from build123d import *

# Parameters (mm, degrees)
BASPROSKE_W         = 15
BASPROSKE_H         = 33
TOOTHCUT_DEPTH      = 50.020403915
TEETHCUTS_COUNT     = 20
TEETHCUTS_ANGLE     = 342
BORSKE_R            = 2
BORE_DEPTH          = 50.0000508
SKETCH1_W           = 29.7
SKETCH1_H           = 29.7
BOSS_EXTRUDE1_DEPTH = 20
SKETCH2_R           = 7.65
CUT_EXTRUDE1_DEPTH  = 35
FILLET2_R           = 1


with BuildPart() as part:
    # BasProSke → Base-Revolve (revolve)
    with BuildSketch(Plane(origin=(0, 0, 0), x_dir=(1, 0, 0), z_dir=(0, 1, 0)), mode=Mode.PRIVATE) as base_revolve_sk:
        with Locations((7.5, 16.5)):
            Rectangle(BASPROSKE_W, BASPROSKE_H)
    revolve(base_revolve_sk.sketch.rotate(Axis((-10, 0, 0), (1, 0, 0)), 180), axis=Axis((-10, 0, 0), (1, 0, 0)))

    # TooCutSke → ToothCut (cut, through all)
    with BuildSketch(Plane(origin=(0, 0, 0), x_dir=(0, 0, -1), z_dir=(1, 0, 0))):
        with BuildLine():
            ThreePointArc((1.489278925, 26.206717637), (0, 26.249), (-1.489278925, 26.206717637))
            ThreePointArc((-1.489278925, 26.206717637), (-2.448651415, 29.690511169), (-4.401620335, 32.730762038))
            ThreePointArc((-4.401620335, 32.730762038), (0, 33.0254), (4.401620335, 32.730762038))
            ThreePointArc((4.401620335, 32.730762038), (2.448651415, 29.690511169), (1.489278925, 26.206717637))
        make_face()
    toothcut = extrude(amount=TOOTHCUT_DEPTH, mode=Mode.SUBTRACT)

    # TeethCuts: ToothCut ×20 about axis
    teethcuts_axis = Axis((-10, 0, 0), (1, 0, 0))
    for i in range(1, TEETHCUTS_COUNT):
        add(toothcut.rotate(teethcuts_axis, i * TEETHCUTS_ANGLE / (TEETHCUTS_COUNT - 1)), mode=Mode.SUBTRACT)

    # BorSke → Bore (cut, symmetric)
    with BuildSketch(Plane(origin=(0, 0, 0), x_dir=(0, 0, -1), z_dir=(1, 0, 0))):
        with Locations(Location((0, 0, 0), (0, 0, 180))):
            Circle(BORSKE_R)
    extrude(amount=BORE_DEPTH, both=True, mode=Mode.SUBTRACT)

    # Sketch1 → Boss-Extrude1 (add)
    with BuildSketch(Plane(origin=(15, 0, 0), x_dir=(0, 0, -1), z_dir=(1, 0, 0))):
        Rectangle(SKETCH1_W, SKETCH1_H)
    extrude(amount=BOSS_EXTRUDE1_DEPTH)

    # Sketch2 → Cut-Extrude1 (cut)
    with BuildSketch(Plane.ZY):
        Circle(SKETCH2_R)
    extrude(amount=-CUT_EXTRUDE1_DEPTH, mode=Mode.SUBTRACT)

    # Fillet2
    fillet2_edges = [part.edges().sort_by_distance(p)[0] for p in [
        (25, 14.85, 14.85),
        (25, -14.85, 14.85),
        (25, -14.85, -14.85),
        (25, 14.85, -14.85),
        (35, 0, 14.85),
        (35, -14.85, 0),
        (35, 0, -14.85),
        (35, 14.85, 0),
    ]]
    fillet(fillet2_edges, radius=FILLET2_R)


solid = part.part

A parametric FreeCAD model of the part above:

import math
import FreeCAD as App
import Part
import Sketcher

V = App.Vector


def edges_at(feature, points):
    """Names of the edges that pass closest to the given points."""
    edges = feature.Shape.Edges
    near = lambda p: min(range(len(edges)), key=lambda i: edges[i].distToShape(Part.Vertex(*p))[0])
    return sorted({f"Edge{near(p) + 1}" for p in points})

doc = App.newDocument("Part")
body = doc.addObject("PartDesign::Body", "Body")

# Sketch on XZ plane
sketch1 = body.newObject("Sketcher::SketchObject", "Sketch")
sketch1.AttachmentSupport = (doc.getObject("XZ_Plane"), [""])
sketch1.MapMode = "FlatFace"
sketch1.addGeometry(Part.LineSegment(V(0, -33, 0), V(0, 0, 0)), False)
sketch1.addGeometry(Part.LineSegment(V(0, 0, 0), V(15, 0, 0)), False)
sketch1.addGeometry(Part.LineSegment(V(15, 0, 0), V(15, -33, 0)), False)
sketch1.addGeometry(Part.LineSegment(V(15, -33, 0), V(0, -33, 0)), False)
sketch1.addConstraint(Sketcher.Constraint("Coincident", 0, 2, 1, 1))
sketch1.addConstraint(Sketcher.Constraint("Coincident", 1, 2, 2, 1))
sketch1.addConstraint(Sketcher.Constraint("Coincident", 2, 2, 3, 1))
sketch1.addConstraint(Sketcher.Constraint("Coincident", 3, 2, 0, 1))
sketch1.addConstraint(Sketcher.Constraint("Vertical", 0))
sketch1.addConstraint(Sketcher.Constraint("Horizontal", 1))
sketch1.addConstraint(Sketcher.Constraint("Vertical", 2))
sketch1.addConstraint(Sketcher.Constraint("Horizontal", 3))
sketch1.addConstraint(Sketcher.Constraint("Coincident", 0, 2, -1, 1))
sketch1.addConstraint(Sketcher.Constraint("DistanceX", 1, 1, 1, 2, 15.0))
sketch1.addConstraint(Sketcher.Constraint("DistanceY", 0, 1, 0, 2, 33.0))
revolution = body.newObject("PartDesign::Revolution", "Revolution")
revolution.Profile = sketch1
revolution.ReferenceAxis = (sketch1, ["H_Axis"])
revolution.Angle = 360

# Sketch on YZ plane
sketch2 = body.newObject("Sketcher::SketchObject", "Sketch001")
sketch2.AttachmentSupport = (doc.getObject("YZ_Plane"), [""])
sketch2.MapMode = "FlatFace"
sketch2.addGeometry(Part.ArcOfCircle(Part.Circle(V(0, 0, 0), V(0, 0, 1), 26.2), math.radians(-3.25), math.radians(3.25)), False)
sketch2.addGeometry(Part.ArcOfCircle(Part.Circle(V(24.8, -13.4, 0), V(0, 0, 1), 12), math.radians(49), math.radians(83)), False)
sketch2.addGeometry(Part.ArcOfCircle(Part.Circle(V(0, 0, 0), V(0, 0, 1), 33), math.radians(-7.66), math.radians(7.66)), False)
sketch2.addGeometry(Part.ArcOfCircle(Part.Circle(V(24.8, 13.4, 0), V(0, 0, 1), 12), math.radians(-83), math.radians(-49)), False)
sketch2.addConstraint(Sketcher.Constraint("Coincident", 0, 1, 1, 2))
sketch2.addConstraint(Sketcher.Constraint("Coincident", 1, 1, 2, 1))
sketch2.addConstraint(Sketcher.Constraint("Coincident", 2, 2, 3, 2))
sketch2.addConstraint(Sketcher.Constraint("Coincident", 3, 1, 0, 2))
sketch2.addConstraint(Sketcher.Constraint("Coincident", 0, 3, -1, 1))
sketch2.addConstraint(Sketcher.Constraint("Coincident", 2, 3, -1, 1))
sketch2.addConstraint(Sketcher.Constraint("Equal", 1, 3))
sketch2.addConstraint(Sketcher.Constraint("Symmetric", 1, 3, 3, 3, -1))
sketch2.addConstraint(Sketcher.Constraint("Radius", 1, 12.0))
sketch2.addConstraint(Sketcher.Constraint("Radius", 0, 26.249))
sketch2.addConstraint(Sketcher.Constraint("Radius", 2, 33.0254))
sketch2.addConstraint(Sketcher.Constraint("DistanceY", 0, 1, 2, 2, 5.890899))
sketch2.addConstraint(Sketcher.Constraint("DistanceX", -1, 1, 1, 3, 24.798951))
pocket1 = body.newObject("PartDesign::Pocket", "Pocket")
pocket1.Profile = sketch2
pocket1.Type = "ThroughAll"
pocket1.Reversed = True
doc.recompute()

polarpattern = body.newObject("PartDesign::PolarPattern", "PolarPattern")
polarpattern.Originals = [pocket1]
polarpattern.Axis = (doc.getObject("X_Axis"), [""])
polarpattern.Angle = 360
polarpattern.Occurrences = 20
body.Tip = polarpattern

# Sketch on YZ plane
sketch3 = body.newObject("Sketcher::SketchObject", "Sketch002")
sketch3.AttachmentSupport = (doc.getObject("YZ_Plane"), [""])
sketch3.MapMode = "FlatFace"
sketch3.addGeometry(Part.Circle(V(0, 0, 0), V(0, 0, 1), 2), False)
sketch3.addConstraint(Sketcher.Constraint("Coincident", 0, 3, -1, 1))
sketch3.addConstraint(Sketcher.Constraint("Diameter", 0, 4.0))
pocket2 = body.newObject("PartDesign::Pocket", "Pocket001")
pocket2.Profile = sketch3
pocket2.Length = 100.000102
pocket2.Midplane = True

# Sketch on YZ plane
sketch4 = body.newObject("Sketcher::SketchObject", "Sketch003")
sketch4.AttachmentSupport = (doc.getObject("YZ_Plane"), [""])
sketch4.MapMode = "FlatFace"
sketch4.AttachmentOffset = App.Placement(V(0, 0, 15), App.Rotation())
sketch4.addGeometry(Part.LineSegment(V(15, 15, 0), V(-15, 15, 0)), False)
sketch4.addGeometry(Part.LineSegment(V(-15, 15, 0), V(-15, -15, 0)), False)
sketch4.addGeometry(Part.LineSegment(V(-15, -15, 0), V(15, -15, 0)), False)
sketch4.addGeometry(Part.LineSegment(V(15, -15, 0), V(15, 15, 0)), False)
sketch4.addConstraint(Sketcher.Constraint("Coincident", 0, 2, 1, 1))
sketch4.addConstraint(Sketcher.Constraint("Coincident", 1, 2, 2, 1))
sketch4.addConstraint(Sketcher.Constraint("Coincident", 2, 2, 3, 1))
sketch4.addConstraint(Sketcher.Constraint("Coincident", 3, 2, 0, 1))
sketch4.addConstraint(Sketcher.Constraint("Horizontal", 0))
sketch4.addConstraint(Sketcher.Constraint("Vertical", 1))
sketch4.addConstraint(Sketcher.Constraint("Horizontal", 2))
sketch4.addConstraint(Sketcher.Constraint("Vertical", 3))
sketch4.addConstraint(Sketcher.Constraint("Symmetric", 0, 2, 2, 2, -1, 1))
sketch4.addConstraint(Sketcher.Constraint("Equal", 2, 1))
sketch4.addConstraint(Sketcher.Constraint("DistanceX", 0, 2, 0, 1, 29.7))
pad1 = body.newObject("PartDesign::Pad", "Pad")
pad1.Profile = sketch4
pad1.Length = 20

# Sketch on YZ plane
sketch5 = body.newObject("Sketcher::SketchObject", "Sketch004")
sketch5.AttachmentSupport = (doc.getObject("YZ_Plane"), [""])
sketch5.MapMode = "FlatFace"
sketch5.addGeometry(Part.Circle(V(0, 0, 0), V(0, 0, 1), 8), False)
sketch5.addConstraint(Sketcher.Constraint("Coincident", 0, 3, -1, 1))
sketch5.addConstraint(Sketcher.Constraint("Diameter", 0, 15.3))
pocket3 = body.newObject("PartDesign::Pocket", "Pocket002")
pocket3.Profile = sketch5
pocket3.Length = 35
pocket3.Reversed = True
doc.recompute()

fillet = body.newObject("PartDesign::Fillet", "Fillet")
fillet.Base = (pocket3, edges_at(pocket3, [
    (25, 14.85, 14.85),
    (25, -14.85, 14.85),
    (25, -14.85, -14.85),
    (25, 14.85, -14.85),
    (35, 0, 14.85),
    (35, -14.85, 0),
    (35, 0, -14.85),
    (35, 14.85, 0),
]))
fillet.Radius = 1

doc.recompute()
